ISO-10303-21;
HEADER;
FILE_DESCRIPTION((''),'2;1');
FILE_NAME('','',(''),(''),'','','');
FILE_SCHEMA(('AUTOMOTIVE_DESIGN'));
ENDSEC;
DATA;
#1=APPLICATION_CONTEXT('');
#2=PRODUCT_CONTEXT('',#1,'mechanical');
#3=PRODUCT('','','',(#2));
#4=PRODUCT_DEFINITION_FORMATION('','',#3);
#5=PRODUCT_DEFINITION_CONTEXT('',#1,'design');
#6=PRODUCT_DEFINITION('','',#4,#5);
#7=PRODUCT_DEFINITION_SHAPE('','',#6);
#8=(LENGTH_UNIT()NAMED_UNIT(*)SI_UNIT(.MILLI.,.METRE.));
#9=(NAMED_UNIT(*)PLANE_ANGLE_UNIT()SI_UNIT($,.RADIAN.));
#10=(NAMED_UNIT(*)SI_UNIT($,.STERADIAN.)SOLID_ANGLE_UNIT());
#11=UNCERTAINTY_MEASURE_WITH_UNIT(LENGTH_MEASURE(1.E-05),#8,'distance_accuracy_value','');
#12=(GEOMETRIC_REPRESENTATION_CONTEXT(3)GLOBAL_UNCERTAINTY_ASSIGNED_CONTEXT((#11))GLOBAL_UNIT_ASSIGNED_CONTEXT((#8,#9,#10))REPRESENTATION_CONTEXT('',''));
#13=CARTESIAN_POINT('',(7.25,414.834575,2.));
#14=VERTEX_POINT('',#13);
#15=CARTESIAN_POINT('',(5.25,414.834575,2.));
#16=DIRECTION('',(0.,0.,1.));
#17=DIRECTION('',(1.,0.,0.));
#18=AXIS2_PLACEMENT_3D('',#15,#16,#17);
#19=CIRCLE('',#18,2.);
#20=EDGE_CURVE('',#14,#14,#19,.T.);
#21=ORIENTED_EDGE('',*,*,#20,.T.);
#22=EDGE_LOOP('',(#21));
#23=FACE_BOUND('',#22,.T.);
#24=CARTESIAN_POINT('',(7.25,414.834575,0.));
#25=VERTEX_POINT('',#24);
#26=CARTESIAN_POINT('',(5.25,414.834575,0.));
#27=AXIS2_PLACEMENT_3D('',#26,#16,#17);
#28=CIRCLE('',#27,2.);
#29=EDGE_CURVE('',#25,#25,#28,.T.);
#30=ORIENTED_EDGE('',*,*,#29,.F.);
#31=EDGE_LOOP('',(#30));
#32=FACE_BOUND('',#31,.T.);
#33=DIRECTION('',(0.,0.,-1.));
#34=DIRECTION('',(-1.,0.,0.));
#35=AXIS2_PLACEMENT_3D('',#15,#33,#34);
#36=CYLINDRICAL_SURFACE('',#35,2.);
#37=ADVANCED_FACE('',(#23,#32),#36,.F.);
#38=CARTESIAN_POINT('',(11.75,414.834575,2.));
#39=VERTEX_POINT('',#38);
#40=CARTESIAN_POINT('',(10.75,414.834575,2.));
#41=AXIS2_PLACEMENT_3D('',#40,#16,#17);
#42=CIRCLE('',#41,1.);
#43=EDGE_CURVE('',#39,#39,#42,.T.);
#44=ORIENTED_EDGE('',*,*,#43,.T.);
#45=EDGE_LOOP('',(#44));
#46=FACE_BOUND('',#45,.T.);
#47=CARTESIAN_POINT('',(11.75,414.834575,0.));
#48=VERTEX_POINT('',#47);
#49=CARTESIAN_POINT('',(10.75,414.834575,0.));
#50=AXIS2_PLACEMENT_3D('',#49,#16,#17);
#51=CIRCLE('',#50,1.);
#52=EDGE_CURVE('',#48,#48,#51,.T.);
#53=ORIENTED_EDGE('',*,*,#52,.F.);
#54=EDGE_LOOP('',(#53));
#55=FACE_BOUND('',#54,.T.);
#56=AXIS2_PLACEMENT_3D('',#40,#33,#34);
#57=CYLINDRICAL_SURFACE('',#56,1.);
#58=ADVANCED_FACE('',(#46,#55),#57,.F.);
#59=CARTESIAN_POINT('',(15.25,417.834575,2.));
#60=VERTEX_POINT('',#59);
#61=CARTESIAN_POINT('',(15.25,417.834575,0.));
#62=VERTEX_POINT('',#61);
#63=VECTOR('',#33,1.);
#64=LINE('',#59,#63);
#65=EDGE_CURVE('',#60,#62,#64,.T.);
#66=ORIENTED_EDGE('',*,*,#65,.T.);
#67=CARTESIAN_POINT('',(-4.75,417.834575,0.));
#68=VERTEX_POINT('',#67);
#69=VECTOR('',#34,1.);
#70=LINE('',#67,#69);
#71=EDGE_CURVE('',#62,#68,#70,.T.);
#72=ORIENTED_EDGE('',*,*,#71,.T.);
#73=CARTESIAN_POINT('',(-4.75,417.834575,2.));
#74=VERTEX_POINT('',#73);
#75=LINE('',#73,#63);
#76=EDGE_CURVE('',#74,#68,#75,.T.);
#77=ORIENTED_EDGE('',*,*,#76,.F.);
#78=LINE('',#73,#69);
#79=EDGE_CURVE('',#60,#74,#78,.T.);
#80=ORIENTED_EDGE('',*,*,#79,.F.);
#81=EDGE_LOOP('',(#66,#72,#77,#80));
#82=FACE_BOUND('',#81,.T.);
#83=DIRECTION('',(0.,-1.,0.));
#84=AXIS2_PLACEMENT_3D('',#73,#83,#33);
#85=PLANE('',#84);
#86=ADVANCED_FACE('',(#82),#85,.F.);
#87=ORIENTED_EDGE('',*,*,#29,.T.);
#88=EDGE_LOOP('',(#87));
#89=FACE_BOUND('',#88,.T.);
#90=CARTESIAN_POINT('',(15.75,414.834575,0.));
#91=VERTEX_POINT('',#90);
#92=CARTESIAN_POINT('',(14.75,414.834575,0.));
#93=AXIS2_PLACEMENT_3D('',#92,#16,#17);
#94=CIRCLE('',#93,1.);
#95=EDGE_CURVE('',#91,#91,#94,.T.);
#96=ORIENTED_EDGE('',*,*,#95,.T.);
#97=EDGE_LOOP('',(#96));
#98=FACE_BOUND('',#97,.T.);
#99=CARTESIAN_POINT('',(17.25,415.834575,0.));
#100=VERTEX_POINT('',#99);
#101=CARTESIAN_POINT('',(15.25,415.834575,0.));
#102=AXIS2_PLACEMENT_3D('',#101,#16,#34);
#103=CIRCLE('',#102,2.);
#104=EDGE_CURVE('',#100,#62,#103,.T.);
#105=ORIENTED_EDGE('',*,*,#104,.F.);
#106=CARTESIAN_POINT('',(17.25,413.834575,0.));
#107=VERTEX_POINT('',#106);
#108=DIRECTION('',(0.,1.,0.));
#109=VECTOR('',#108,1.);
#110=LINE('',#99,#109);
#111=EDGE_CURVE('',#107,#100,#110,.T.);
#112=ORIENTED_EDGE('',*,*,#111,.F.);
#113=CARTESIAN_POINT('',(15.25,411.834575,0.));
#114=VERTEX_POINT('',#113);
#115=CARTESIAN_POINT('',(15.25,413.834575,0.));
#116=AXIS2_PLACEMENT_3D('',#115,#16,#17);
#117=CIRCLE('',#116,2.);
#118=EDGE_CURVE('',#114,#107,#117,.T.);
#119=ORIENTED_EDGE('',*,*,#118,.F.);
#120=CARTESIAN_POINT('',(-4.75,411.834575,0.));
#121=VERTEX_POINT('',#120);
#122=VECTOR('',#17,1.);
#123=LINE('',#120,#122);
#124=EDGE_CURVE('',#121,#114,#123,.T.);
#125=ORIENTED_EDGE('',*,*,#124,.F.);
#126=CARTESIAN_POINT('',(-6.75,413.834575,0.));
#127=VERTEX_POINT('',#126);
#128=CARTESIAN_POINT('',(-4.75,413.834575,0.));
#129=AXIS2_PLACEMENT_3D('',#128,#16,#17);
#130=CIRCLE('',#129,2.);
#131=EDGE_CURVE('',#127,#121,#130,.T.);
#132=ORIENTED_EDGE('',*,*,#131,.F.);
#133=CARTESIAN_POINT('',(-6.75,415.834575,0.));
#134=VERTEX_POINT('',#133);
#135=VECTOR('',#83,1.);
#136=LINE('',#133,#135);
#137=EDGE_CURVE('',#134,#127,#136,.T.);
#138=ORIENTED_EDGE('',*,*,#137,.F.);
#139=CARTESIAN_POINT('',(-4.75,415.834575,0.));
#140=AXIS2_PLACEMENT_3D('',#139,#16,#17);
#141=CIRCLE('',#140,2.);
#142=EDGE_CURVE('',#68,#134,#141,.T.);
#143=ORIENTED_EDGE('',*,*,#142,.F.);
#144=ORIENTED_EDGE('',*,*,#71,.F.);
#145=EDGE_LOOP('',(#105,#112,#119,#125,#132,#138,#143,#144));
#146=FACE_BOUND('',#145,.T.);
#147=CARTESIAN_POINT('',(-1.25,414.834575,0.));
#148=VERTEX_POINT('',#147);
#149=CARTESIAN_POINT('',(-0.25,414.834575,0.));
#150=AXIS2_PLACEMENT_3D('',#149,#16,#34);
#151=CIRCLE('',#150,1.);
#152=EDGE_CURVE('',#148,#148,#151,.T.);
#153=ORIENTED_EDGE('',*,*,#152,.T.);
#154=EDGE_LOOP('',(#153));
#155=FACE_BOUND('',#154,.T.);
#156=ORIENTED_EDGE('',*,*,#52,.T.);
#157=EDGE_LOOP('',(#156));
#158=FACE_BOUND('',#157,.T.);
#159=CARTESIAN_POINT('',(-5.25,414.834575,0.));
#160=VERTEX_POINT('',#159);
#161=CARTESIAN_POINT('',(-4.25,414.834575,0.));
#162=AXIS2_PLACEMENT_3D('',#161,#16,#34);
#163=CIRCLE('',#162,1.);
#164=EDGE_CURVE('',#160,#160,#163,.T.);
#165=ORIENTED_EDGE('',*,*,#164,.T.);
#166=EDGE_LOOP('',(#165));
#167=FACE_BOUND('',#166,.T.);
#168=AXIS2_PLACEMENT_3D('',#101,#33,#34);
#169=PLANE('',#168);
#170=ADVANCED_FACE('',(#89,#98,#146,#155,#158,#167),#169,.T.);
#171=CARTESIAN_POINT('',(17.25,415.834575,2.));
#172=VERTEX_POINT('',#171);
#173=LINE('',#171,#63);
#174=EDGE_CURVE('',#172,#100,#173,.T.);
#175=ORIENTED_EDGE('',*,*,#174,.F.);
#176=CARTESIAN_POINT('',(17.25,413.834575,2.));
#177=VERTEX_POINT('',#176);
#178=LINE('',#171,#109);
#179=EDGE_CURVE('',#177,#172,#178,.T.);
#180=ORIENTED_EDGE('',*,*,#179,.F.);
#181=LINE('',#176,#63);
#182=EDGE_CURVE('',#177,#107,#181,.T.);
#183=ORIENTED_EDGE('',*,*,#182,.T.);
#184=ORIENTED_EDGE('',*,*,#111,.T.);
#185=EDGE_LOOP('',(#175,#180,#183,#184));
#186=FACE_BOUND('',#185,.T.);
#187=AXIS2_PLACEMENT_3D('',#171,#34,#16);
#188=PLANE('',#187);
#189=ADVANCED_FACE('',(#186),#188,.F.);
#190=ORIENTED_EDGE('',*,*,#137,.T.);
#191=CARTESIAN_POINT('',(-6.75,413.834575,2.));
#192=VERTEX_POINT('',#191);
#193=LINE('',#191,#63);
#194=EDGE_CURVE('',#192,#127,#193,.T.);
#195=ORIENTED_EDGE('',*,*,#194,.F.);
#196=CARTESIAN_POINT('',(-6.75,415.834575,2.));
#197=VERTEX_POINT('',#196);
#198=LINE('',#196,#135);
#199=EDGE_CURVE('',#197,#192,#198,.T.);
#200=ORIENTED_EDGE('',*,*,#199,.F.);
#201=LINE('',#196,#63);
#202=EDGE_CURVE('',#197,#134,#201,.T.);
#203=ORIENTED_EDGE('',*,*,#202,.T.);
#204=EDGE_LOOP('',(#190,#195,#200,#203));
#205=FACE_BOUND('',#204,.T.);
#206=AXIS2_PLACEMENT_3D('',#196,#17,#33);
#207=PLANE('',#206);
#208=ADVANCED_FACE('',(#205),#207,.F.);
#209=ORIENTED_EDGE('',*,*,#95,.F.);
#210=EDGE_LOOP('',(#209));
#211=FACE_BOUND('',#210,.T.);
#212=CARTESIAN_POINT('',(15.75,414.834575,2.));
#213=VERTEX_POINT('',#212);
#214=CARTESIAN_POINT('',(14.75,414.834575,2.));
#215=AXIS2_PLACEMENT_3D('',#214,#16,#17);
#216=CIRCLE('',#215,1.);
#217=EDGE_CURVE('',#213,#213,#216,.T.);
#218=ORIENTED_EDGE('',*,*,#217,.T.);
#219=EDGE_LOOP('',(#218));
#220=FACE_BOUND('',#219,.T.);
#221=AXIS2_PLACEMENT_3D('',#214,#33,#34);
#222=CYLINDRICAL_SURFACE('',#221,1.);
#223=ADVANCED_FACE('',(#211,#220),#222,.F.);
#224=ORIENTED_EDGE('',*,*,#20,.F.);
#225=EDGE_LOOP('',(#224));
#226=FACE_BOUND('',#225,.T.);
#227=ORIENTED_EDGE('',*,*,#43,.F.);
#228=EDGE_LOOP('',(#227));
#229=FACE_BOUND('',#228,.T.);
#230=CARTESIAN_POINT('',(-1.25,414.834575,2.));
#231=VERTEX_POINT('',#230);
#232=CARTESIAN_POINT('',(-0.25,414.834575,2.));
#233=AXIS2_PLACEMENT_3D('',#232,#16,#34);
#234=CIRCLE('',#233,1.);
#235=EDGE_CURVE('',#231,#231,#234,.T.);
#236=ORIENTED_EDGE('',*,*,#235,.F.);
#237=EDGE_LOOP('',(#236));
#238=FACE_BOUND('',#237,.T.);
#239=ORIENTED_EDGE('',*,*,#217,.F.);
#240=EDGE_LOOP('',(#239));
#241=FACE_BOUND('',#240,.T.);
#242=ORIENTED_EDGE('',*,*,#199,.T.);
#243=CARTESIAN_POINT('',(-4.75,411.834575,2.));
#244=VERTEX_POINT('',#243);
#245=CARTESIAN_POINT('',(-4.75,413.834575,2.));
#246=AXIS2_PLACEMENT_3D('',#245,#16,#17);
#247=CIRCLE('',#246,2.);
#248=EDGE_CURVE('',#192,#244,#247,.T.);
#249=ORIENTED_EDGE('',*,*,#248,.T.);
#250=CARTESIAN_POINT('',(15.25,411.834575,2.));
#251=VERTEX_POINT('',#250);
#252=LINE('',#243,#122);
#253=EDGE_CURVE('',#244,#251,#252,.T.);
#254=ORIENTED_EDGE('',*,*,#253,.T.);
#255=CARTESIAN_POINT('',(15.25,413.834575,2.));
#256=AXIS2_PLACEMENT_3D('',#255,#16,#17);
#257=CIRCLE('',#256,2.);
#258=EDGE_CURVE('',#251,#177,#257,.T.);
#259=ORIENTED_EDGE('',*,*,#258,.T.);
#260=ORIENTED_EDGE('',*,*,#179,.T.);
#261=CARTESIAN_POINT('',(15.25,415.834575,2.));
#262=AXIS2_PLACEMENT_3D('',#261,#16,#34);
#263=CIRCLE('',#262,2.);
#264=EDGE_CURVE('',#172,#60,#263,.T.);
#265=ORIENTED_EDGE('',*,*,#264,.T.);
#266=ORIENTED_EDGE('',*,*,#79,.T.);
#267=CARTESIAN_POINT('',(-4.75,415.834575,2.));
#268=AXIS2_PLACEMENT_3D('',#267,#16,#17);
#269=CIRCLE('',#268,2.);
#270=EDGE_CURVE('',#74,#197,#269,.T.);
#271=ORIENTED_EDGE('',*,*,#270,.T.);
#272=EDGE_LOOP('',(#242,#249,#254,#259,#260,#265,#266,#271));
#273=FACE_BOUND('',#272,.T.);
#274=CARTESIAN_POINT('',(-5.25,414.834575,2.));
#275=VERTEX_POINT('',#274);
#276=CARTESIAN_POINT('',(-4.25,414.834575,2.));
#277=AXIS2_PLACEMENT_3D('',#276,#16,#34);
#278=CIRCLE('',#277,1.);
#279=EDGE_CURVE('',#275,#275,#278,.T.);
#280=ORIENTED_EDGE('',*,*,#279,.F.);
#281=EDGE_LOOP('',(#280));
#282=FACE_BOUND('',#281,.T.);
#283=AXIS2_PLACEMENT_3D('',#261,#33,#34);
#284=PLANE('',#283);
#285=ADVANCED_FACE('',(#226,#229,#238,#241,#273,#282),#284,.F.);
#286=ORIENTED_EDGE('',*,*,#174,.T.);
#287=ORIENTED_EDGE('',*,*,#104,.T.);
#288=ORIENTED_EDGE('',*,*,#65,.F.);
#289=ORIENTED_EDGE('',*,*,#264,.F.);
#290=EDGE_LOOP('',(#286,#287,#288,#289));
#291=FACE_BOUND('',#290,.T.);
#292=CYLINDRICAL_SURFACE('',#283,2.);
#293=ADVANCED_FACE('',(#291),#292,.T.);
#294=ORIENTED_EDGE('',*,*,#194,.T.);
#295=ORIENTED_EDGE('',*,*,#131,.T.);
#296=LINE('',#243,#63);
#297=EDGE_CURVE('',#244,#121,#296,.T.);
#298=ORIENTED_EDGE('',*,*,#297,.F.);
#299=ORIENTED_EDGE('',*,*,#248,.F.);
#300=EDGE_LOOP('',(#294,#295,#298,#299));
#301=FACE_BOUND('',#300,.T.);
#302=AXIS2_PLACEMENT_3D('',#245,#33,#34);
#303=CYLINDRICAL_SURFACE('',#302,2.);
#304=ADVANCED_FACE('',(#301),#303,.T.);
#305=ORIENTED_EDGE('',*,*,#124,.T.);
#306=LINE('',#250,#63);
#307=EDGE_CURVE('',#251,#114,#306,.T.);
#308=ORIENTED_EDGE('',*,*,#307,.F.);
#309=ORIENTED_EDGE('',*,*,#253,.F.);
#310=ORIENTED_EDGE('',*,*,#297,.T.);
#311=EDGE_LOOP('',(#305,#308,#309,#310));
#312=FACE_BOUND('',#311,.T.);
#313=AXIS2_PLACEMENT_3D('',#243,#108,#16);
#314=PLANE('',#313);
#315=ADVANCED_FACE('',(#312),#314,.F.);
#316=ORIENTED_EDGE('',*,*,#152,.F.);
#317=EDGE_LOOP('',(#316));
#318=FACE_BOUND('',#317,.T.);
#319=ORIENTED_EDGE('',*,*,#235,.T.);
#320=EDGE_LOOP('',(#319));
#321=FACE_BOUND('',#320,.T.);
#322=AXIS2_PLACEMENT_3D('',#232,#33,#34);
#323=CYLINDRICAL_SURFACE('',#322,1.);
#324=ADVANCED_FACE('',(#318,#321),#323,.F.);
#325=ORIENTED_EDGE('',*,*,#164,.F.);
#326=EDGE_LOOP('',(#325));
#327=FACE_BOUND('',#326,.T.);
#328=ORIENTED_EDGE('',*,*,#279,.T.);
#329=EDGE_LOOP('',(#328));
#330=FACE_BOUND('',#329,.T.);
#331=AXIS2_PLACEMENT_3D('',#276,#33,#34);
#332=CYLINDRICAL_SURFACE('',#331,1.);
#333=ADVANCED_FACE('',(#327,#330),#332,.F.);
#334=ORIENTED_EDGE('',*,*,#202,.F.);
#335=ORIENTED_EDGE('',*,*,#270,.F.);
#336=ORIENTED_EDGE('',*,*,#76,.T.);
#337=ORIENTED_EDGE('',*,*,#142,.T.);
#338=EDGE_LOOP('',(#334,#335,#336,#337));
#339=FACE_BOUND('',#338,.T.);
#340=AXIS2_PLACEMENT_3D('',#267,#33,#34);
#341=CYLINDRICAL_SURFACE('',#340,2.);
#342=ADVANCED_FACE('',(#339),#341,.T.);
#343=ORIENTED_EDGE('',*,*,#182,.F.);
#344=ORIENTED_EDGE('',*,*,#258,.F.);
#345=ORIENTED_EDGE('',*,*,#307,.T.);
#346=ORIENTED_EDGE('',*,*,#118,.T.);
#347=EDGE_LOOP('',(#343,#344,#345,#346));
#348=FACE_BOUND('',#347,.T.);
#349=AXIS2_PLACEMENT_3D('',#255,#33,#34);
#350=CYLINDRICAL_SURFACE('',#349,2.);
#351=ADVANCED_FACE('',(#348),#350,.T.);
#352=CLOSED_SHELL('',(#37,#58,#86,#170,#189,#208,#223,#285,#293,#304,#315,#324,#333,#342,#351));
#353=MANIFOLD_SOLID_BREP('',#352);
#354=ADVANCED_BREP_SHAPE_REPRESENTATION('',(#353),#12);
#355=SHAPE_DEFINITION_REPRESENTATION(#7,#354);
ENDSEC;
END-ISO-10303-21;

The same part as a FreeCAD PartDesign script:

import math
import FreeCAD as App
import Part
import Sketcher

V = App.Vector

doc = App.newDocument("Part")
body = doc.addObject("PartDesign::Body", "Body")

sketch1 = body.newObject("Sketcher::SketchObject", "Sketch")
sketch1.AttachmentSupport = (doc.getObject("XY_Plane"), [""])
sketch1.MapMode = "FlatFace"
sketch1.addGeometry(Part.LineSegment(V(15.2, 417.8, 0), V(-4.8, 417.8, 0)), False)
sketch1.addGeometry(Part.ArcOfCircle(Part.Circle(V(-4.7, 415.8, 0), V(0, 0, 1), 2), math.radians(90), math.radians(180)), False)
sketch1.addGeometry(Part.LineSegment(V(-6.8, 415.8, 0), V(-6.8, 413.8, 0)), False)
sketch1.addGeometry(Part.ArcOfCircle(Part.Circle(V(-4.7, 413.8, 0), V(0, 0, 1), 2), math.radians(-180), math.radians(-90)), False)
sketch1.addGeometry(Part.LineSegment(V(-4.8, 411.8, 0), V(15.2, 411.8, 0)), False)
sketch1.addGeometry(Part.ArcOfCircle(Part.Circle(V(15.2, 413.8, 0), V(0, 0, 1), 2), math.radians(-90), math.radians(0)), False)
sketch1.addGeometry(Part.LineSegment(V(17.2, 413.8, 0), V(17.2, 415.8, 0)), False)
sketch1.addGeometry(Part.ArcOfCircle(Part.Circle(V(15.2, 415.8, 0), V(0, 0, 1), 2), math.radians(0), math.radians(90)), False)
sketch1.addGeometry(Part.Circle(V(14.8, 414.8, 0), V(0, 0, 1), 1), False)
sketch1.addGeometry(Part.Circle(V(10.8, 414.8, 0), V(0, 0, 1), 1), False)
sketch1.addGeometry(Part.Circle(V(5.2, 414.8, 0), V(0, 0, 1), 2), False)
sketch1.addGeometry(Part.Circle(V(-0.2, 414.8, 0), V(0, 0, 1), 1), False)
sketch1.addGeometry(Part.Circle(V(-4.2, 414.8, 0), V(0, 0, 1), 1), False)
sketch1.addConstraint(Sketcher.Constraint("Tangent", 0, 2, 1, 1))
sketch1.addConstraint(Sketcher.Constraint("Tangent", 1, 2, 2, 1))
sketch1.addConstraint(Sketcher.Constraint("Tangent", 2, 2, 3, 1))
sketch1.addConstraint(Sketcher.Constraint("Tangent", 3, 2, 4, 1))
sketch1.addConstraint(Sketcher.Constraint("Tangent", 4, 2, 5, 1))
sketch1.addConstraint(Sketcher.Constraint("Tangent", 5, 2, 6, 1))
sketch1.addConstraint(Sketcher.Constraint("Tangent", 6, 2, 7, 1))
sketch1.addConstraint(Sketcher.Constraint("Tangent", 7, 2, 0, 1))
sketch1.addConstraint(Sketcher.Constraint("Horizontal", 0))
sketch1.addConstraint(Sketcher.Constraint("Vertical", 2))
sketch1.addConstraint(Sketcher.Constraint("Horizontal", 4))
sketch1.addConstraint(Sketcher.Constraint("Vertical", 6))
sketch1.addConstraint(Sketcher.Constraint("Equal", 1, 3))
sketch1.addConstraint(Sketcher.Constraint("Equal", 3, 5))
sketch1.addConstraint(Sketcher.Constraint("Equal", 5, 7))
sketch1.addConstraint(Sketcher.Constraint("Equal", 8, 9))
sketch1.addConstraint(Sketcher.Constraint("Equal", 7, 10))
sketch1.addConstraint(Sketcher.Constraint("Equal", 9, 11))
sketch1.addConstraint(Sketcher.Constraint("Equal", 11, 12))
sketch1.addConstraint(Sketcher.Constraint("Horizontal", 8, 3, 9, 3))
sketch1.addConstraint(Sketcher.Constraint("Horizontal", 9, 3, 10, 3))
sketch1.addConstraint(Sketcher.Constraint("Horizontal", 10, 3, 11, 3))
sketch1.addConstraint(Sketcher.Constraint("Horizontal", 11, 3, 12, 3))
sketch1.addConstraint(Sketcher.Constraint("Diameter", 8, 2.0))
sketch1.addConstraint(Sketcher.Constraint("Diameter", 10, 4.0))
sketch1.addConstraint(Sketcher.Constraint("DistanceX", 0, 2, 0, 1, 20.0))
sketch1.addConstraint(Sketcher.Constraint("DistanceY", 2, 2, 2, 1, 2.0))
sketch1.addConstraint(Sketcher.Constraint("DistanceY", 8, 3, 7, 3, 1.0))
sketch1.addConstraint(Sketcher.Constraint("DistanceX", 9, 3, 8, 3, 4.0))
sketch1.addConstraint(Sketcher.Constraint("DistanceX", 1, 3, 10, 3, 10.0))
sketch1.addConstraint(Sketcher.Constraint("DistanceX", 11, 3, 9, 3, 11.0))
sketch1.addConstraint(Sketcher.Constraint("DistanceX", 12, 3, 11, 3, 4.0))
sketch1.addConstraint(Sketcher.Constraint("DistanceX", 8, 3, 7, 3, 0.5))
sketch1.addConstraint(Sketcher.Constraint("DistanceX", 1, 3, -1, 1, 4.75))
sketch1.addConstraint(Sketcher.Constraint("DistanceY", -1, 1, 1, 3, 415.834575))
pad1 = body.newObject("PartDesign::Pad", "Pad")
pad1.Profile = sketch1
pad1.Length = 2

doc.recompute()
